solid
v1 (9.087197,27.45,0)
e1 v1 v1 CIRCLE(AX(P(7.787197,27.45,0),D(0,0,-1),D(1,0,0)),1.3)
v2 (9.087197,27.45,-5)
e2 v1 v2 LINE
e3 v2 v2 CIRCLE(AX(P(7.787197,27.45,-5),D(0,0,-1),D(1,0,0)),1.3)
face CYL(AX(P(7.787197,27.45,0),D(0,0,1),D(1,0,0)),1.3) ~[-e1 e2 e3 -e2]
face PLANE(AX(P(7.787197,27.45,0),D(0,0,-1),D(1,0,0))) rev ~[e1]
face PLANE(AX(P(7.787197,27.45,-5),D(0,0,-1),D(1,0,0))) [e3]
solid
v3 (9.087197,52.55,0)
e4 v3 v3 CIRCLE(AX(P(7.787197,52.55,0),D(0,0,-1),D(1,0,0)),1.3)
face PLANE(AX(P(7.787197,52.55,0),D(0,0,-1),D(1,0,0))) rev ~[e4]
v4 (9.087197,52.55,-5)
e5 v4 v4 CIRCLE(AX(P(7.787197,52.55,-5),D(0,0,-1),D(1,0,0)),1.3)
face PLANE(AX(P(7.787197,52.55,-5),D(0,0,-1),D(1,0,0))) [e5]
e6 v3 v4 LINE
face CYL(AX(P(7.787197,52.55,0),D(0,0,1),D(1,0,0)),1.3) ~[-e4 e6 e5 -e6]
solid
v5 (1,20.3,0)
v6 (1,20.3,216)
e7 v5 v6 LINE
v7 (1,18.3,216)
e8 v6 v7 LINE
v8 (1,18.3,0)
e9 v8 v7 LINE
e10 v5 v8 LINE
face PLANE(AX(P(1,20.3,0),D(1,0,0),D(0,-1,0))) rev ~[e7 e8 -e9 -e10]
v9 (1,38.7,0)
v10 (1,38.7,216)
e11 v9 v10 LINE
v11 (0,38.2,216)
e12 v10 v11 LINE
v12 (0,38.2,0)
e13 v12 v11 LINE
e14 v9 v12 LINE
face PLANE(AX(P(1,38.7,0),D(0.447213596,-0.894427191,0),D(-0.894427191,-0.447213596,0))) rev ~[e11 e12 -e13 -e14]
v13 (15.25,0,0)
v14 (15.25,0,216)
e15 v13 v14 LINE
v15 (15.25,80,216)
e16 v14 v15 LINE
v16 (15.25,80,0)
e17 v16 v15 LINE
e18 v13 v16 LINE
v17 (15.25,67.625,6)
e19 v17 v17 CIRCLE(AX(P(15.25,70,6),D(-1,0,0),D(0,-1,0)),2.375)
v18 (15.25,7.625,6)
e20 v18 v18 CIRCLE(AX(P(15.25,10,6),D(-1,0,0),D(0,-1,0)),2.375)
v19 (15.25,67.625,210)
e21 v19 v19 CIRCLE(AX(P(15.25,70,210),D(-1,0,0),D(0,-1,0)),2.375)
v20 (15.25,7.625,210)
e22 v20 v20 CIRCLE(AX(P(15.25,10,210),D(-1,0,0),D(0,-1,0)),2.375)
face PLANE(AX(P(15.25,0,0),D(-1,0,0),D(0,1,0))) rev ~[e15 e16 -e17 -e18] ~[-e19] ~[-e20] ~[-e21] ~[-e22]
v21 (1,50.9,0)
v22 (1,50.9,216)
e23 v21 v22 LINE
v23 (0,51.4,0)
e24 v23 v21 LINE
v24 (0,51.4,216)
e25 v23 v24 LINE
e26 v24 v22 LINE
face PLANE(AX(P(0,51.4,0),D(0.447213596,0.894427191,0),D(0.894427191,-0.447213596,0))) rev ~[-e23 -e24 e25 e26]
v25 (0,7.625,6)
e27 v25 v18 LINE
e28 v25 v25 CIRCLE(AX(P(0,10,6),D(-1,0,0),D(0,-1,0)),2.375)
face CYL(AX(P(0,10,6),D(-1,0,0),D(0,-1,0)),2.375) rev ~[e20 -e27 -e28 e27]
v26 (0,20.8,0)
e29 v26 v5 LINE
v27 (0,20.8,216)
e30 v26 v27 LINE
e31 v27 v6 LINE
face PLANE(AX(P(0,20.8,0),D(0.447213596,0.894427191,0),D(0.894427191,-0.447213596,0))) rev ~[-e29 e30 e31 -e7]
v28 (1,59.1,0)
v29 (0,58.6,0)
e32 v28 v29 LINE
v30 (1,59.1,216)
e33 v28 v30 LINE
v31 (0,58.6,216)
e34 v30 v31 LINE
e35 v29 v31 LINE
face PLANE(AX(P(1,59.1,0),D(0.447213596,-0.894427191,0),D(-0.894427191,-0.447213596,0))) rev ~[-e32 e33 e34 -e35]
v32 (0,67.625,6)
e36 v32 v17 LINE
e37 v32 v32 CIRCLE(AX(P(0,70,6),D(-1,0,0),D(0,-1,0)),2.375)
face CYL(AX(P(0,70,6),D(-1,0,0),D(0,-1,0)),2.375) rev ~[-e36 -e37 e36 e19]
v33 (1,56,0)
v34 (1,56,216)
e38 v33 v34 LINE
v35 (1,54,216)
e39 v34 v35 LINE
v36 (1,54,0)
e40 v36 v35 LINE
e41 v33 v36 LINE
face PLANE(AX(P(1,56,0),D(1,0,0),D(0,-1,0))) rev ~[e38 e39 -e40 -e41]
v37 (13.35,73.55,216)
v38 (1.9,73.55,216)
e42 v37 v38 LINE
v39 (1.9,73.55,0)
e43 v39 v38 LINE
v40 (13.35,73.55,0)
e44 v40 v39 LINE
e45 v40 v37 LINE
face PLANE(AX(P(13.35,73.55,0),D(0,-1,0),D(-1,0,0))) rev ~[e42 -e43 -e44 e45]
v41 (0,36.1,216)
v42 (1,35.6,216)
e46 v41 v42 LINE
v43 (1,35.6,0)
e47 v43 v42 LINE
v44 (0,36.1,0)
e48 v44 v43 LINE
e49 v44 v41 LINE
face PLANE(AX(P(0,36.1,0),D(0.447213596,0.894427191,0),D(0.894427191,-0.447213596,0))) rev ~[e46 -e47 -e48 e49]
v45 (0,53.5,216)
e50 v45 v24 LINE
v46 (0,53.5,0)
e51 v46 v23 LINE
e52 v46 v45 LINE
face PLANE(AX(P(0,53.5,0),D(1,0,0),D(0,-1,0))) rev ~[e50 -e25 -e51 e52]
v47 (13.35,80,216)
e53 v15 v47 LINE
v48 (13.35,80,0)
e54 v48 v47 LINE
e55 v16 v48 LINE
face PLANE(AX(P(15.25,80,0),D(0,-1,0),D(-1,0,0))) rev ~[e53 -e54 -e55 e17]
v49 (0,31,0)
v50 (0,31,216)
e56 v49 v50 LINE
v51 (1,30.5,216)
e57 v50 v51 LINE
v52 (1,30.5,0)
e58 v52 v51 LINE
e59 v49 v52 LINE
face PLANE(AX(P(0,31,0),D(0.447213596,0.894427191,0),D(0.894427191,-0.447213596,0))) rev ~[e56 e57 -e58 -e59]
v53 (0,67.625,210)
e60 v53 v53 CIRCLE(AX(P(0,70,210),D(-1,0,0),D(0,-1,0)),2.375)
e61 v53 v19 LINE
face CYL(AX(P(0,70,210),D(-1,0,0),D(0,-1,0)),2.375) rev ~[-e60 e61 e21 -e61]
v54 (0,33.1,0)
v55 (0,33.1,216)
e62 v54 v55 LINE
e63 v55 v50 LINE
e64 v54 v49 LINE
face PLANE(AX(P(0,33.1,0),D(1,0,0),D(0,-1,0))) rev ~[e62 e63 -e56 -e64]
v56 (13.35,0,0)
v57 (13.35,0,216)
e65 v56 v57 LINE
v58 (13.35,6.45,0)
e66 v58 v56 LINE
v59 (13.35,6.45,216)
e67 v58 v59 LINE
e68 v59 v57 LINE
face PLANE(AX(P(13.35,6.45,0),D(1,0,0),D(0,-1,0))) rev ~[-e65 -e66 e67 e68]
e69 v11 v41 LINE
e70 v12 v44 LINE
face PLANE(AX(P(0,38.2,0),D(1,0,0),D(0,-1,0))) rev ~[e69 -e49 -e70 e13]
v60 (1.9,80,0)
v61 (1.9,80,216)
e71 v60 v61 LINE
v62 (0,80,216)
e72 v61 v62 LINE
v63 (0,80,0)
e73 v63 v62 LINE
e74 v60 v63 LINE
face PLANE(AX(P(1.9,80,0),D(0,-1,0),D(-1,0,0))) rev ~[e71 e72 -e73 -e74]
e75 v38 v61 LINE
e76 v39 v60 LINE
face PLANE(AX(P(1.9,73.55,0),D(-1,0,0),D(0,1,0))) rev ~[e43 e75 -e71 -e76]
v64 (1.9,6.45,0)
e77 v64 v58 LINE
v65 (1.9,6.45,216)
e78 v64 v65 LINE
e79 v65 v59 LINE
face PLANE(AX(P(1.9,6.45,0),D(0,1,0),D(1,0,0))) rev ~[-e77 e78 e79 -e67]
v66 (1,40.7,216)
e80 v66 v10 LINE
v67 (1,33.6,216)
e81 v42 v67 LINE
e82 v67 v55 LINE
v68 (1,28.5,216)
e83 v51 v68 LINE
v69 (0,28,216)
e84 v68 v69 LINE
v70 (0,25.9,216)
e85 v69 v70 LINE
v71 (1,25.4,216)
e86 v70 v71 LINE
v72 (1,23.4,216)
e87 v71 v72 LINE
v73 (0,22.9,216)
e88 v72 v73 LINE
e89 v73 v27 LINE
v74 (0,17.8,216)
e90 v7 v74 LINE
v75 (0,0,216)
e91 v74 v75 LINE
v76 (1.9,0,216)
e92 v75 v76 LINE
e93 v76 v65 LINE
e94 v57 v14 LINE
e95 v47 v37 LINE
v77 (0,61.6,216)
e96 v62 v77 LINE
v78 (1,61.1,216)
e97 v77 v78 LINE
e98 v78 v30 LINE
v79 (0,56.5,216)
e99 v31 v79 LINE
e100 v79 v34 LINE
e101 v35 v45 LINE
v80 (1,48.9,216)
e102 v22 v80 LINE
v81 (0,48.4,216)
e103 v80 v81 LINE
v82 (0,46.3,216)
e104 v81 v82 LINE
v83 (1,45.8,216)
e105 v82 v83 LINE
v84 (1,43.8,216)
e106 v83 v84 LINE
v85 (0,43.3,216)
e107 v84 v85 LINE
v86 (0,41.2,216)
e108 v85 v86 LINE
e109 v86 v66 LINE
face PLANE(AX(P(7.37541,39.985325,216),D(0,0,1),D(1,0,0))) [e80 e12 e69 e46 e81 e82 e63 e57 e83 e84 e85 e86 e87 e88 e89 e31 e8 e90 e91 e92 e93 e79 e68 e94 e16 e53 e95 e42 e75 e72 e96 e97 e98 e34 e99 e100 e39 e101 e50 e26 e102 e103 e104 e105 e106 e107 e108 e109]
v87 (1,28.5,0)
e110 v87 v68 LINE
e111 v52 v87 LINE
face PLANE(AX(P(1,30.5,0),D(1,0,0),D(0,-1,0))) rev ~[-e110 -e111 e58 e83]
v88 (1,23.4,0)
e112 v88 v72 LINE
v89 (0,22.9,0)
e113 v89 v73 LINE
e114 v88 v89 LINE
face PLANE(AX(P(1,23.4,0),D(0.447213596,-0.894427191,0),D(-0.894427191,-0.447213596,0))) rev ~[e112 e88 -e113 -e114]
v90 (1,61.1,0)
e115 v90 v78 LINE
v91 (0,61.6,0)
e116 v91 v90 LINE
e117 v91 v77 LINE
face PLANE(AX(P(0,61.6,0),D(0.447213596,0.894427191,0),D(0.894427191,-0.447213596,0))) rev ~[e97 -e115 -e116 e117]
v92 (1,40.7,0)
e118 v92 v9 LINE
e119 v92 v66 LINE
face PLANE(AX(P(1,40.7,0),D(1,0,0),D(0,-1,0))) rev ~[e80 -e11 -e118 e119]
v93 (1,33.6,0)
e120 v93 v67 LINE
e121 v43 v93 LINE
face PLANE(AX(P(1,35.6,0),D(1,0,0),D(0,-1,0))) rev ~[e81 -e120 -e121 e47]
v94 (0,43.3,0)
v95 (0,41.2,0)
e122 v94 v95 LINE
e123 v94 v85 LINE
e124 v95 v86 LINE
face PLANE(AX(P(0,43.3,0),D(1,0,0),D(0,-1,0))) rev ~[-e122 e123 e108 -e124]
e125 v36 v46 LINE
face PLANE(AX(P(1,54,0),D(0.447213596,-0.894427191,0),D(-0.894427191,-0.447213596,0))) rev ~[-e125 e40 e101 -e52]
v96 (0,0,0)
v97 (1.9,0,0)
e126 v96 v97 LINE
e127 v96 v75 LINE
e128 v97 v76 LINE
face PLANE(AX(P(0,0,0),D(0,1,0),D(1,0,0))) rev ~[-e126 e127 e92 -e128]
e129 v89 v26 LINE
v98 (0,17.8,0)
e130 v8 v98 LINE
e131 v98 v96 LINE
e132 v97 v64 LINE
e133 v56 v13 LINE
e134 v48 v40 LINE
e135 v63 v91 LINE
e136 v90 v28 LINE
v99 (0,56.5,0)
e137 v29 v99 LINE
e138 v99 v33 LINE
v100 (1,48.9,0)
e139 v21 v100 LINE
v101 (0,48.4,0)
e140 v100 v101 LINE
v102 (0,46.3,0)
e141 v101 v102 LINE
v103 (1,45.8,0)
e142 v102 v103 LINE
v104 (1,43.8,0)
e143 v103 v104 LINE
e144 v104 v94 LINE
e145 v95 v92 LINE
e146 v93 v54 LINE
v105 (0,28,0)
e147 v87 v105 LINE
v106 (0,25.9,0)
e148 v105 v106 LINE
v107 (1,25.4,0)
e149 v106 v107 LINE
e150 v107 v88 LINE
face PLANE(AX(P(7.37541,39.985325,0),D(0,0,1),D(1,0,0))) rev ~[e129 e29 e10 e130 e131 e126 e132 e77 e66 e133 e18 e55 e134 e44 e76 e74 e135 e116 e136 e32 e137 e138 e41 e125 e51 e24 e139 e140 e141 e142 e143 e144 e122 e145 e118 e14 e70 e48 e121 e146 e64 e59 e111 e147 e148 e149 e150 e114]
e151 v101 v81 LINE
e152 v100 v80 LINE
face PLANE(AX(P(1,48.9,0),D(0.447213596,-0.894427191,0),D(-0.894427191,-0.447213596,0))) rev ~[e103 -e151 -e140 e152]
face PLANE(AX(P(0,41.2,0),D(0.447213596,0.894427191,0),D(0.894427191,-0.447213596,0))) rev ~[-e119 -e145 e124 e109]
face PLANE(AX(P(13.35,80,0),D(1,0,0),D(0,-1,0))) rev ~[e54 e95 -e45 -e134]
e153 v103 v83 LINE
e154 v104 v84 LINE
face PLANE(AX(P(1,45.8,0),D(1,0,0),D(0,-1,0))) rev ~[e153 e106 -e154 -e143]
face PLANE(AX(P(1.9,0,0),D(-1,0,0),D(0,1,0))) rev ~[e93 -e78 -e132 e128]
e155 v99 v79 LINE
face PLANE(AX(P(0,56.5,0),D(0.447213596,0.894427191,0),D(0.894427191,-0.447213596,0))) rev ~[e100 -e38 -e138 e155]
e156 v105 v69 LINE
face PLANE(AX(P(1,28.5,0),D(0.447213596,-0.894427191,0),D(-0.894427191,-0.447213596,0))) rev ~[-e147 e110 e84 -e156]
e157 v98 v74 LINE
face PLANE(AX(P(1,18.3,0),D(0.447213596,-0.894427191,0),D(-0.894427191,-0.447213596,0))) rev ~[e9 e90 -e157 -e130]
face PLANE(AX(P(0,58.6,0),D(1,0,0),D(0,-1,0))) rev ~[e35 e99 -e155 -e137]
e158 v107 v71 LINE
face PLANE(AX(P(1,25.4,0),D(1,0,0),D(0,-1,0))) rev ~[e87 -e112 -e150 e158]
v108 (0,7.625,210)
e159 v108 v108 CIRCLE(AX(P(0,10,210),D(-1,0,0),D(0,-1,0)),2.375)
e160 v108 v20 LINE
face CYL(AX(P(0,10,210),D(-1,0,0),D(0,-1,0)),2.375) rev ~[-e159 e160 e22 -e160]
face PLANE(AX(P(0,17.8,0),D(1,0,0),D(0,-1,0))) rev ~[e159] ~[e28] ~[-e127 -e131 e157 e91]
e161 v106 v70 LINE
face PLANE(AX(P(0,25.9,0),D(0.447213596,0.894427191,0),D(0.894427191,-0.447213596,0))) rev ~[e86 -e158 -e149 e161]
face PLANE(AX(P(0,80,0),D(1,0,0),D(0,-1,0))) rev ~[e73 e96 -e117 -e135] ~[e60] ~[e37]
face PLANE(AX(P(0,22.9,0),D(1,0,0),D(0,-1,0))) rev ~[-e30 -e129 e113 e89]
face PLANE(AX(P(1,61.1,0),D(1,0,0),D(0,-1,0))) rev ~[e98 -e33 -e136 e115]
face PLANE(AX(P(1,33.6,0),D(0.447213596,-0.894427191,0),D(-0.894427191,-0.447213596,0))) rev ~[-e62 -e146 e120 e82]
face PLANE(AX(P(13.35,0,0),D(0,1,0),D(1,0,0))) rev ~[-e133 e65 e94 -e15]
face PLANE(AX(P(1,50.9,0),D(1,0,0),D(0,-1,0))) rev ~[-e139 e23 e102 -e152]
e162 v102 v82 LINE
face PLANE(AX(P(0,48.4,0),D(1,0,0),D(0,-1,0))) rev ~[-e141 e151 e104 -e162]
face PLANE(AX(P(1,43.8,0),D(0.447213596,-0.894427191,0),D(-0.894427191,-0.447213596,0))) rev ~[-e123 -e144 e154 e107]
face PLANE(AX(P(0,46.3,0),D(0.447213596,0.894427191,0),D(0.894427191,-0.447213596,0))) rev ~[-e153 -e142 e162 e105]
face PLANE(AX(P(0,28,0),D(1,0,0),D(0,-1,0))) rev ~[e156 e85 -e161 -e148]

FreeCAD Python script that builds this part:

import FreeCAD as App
import Part
import Sketcher

V = App.Vector


def add_polygon(sketch, points):
    """Adds a closed chain of lines whose ends are joined by coincident constraints."""
    first, n = sketch.GeometryCount, len(points)
    for a, b in zip(points, points[1:] + points[:1]):
        sketch.addGeometry(Part.LineSegment(App.Vector(*a, 0), App.Vector(*b, 0)), False)
    for i in range(n):
        sketch.addConstraint(Sketcher.Constraint("Coincident", first + i, 2, first + (i + 1) % n, 1))

doc = App.newDocument("Part")
body = doc.addObject("PartDesign::Body", "Body")

# Sketch on XY plane
sketch1 = doc.addObject("Sketcher::SketchObject", "Sketch")
body.addObject(sketch1)
sketch1.AttachmentSupport = (doc.XY_Plane, [""])
sketch1.MapMode = "FlatFace"
add_polygon(sketch1, [(0, 17.8), (0, 0), (1.9, 0), (1.9, 6.45), (13.35, 6.45), (13.35, 0), (15.25, 0), (15.25, 80), (13.35, 80), (13.35, 73.55), (1.9, 73.55), (1.9, 80), (0, 80), (0, 61.6), (1, 61.1), (1, 59.1), (0, 58.6), (0, 56.5), (1, 56), (1, 54), (0, 53.5), (0, 51.4), (1, 50.9), (1, 48.9), (0, 48.4), (0, 46.3), (1, 45.8), (1, 43.8), (0, 43.3), (0, 41.2), (1, 40.7), (1, 38.7), (0, 38.2), (0, 36.1), (1, 35.6), (1, 33.6), (0, 33.1), (0, 31), (1, 30.5), (1, 28.5), (0, 28), (0, 25.9), (1, 25.4), (1, 23.4), (0, 22.9), (0, 20.8), (1, 20.3), (1, 18.3)])  # lines 0-47
sketch1.addConstraint(Sketcher.Constraint("Vertical", 0))
sketch1.addConstraint(Sketcher.Constraint("Horizontal", 1))
sketch1.addConstraint(Sketcher.Constraint("Vertical", 2))
sketch1.addConstraint(Sketcher.Constraint("Horizontal", 3))
sketch1.addConstraint(Sketcher.Constraint("Vertical", 4))
sketch1.addConstraint(Sketcher.Constraint("Horizontal", 5))
sketch1.addConstraint(Sketcher.Constraint("Vertical", 6))
sketch1.addConstraint(Sketcher.Constraint("Horizontal", 7))
sketch1.addConstraint(Sketcher.Constraint("Vertical", 8))
sketch1.addConstraint(Sketcher.Constraint("Horizontal", 9))
sketch1.addConstraint(Sketcher.Constraint("Vertical", 10))
sketch1.addConstraint(Sketcher.Constraint("Horizontal", 11))
sketch1.addConstraint(Sketcher.Constraint("Vertical", 12))
sketch1.addConstraint(Sketcher.Constraint("Vertical", 14))
sketch1.addConstraint(Sketcher.Constraint("Vertical", 16))
sketch1.addConstraint(Sketcher.Constraint("Vertical", 18))
sketch1.addConstraint(Sketcher.Constraint("Vertical", 20))
sketch1.addConstraint(Sketcher.Constraint("Vertical", 22))
sketch1.addConstraint(Sketcher.Constraint("Vertical", 24))
sketch1.addConstraint(Sketcher.Constraint("Vertical", 26))
sketch1.addConstraint(Sketcher.Constraint("Vertical", 28))
sketch1.addConstraint(Sketcher.Constraint("Vertical", 30))
sketch1.addConstraint(Sketcher.Constraint("Vertical", 32))
sketch1.addConstraint(Sketcher.Constraint("Vertical", 34))
sketch1.addConstraint(Sketcher.Constraint("Vertical", 36))
sketch1.addConstraint(Sketcher.Constraint("Vertical", 38))
sketch1.addConstraint(Sketcher.Constraint("Vertical", 40))
sketch1.addConstraint(Sketcher.Constraint("Vertical", 42))
sketch1.addConstraint(Sketcher.Constraint("Vertical", 44))
sketch1.addConstraint(Sketcher.Constraint("Vertical", 46))
sketch1.addConstraint(Sketcher.Constraint("Coincident", 0, 2, -1, 1))
sketch1.addConstraint(Sketcher.Constraint("PointOnObject", 4, 2, -1))
sketch1.addConstraint(Sketcher.Constraint("PointOnObject", 11, 2, -2))
sketch1.addConstraint(Sketcher.Constraint("PointOnObject", 15, 2, -2))
sketch1.addConstraint(Sketcher.Constraint("PointOnObject", 19, 2, -2))
sketch1.addConstraint(Sketcher.Constraint("PointOnObject", 23, 2, -2))
sketch1.addConstraint(Sketcher.Constraint("PointOnObject", 27, 2, -2))
sketch1.addConstraint(Sketcher.Constraint("PointOnObject", 31, 2, -2))
sketch1.addConstraint(Sketcher.Constraint("PointOnObject", 35, 2, -2))
sketch1.addConstraint(Sketcher.Constraint("PointOnObject", 39, 2, -2))
sketch1.addConstraint(Sketcher.Constraint("PointOnObject", 43, 2, -2))
sketch1.addConstraint(Sketcher.Constraint("Parallel", 13, 17))
sketch1.addConstraint(Sketcher.Constraint("Parallel", 15, 19))
sketch1.addConstraint(Sketcher.Constraint("Parallel", 17, 21))
sketch1.addConstraint(Sketcher.Constraint("Parallel", 19, 23))
sketch1.addConstraint(Sketcher.Constraint("Parallel", 21, 25))
sketch1.addConstraint(Sketcher.Constraint("Parallel", 23, 27))
sketch1.addConstraint(Sketcher.Constraint("Parallel", 25, 29))
sketch1.addConstraint(Sketcher.Constraint("Parallel", 27, 31))
sketch1.addConstraint(Sketcher.Constraint("Parallel", 29, 33))
sketch1.addConstraint(Sketcher.Constraint("Parallel", 31, 35))
sketch1.addConstraint(Sketcher.Constraint("Parallel", 33, 37))
sketch1.addConstraint(Sketcher.Constraint("Parallel", 35, 39))
sketch1.addConstraint(Sketcher.Constraint("Parallel", 37, 41))
sketch1.addConstraint(Sketcher.Constraint("Parallel", 39, 43))
sketch1.addConstraint(Sketcher.Constraint("Parallel", 41, 45))
sketch1.addConstraint(Sketcher.Constraint("Parallel", 43, 47))
sketch1.addConstraint(Sketcher.Constraint("Horizontal", 7, 2, 10, 2))
sketch1.addConstraint(Sketcher.Constraint("Vertical", 4, 2, 7, 2))
sketch1.addConstraint(Sketcher.Constraint("Vertical", 2, 2, 9, 2))
sketch1.addConstraint(Sketcher.Constraint("Vertical", 14, 2, 17, 2))
sketch1.addConstraint(Sketcher.Constraint("Vertical", 18, 2, 21, 2))
sketch1.addConstraint(Sketcher.Constraint("Vertical", 22, 2, 25, 2))
sketch1.addConstraint(Sketcher.Constraint("Vertical", 26, 2, 29, 2))
sketch1.addConstraint(Sketcher.Constraint("Vertical", 30, 2, 33, 2))
sketch1.addConstraint(Sketcher.Constraint("Vertical", 34, 2, 37, 2))
sketch1.addConstraint(Sketcher.Constraint("Vertical", 38, 2, 41, 2))
sketch1.addConstraint(Sketcher.Constraint("Vertical", 42, 2, 45, 2))
sketch1.addConstraint(Sketcher.Constraint("Equal", 1, 5))
sketch1.addConstraint(Sketcher.Constraint("Equal", 4, 8))
sketch1.addConstraint(Sketcher.Constraint("Equal", 14, 18))
sketch1.addConstraint(Sketcher.Constraint("Equal", 16, 20))
sketch1.addConstraint(Sketcher.Constraint("Equal", 18, 22))
sketch1.addConstraint(Sketcher.Constraint("Equal", 20, 24))
sketch1.addConstraint(Sketcher.Constraint("Equal", 22, 26))
sketch1.addConstraint(Sketcher.Constraint("Equal", 24, 28))
sketch1.addConstraint(Sketcher.Constraint("Equal", 26, 30))
sketch1.addConstraint(Sketcher.Constraint("Equal", 28, 32))
sketch1.addConstraint(Sketcher.Constraint("Equal", 30, 34))
sketch1.addConstraint(Sketcher.Constraint("Equal", 32, 36))
sketch1.addConstraint(Sketcher.Constraint("Equal", 34, 38))
sketch1.addConstraint(Sketcher.Constraint("Equal", 36, 40))
sketch1.addConstraint(Sketcher.Constraint("Equal", 38, 42))
sketch1.addConstraint(Sketcher.Constraint("Equal", 40, 44))
sketch1.addConstraint(Sketcher.Constraint("Equal", 42, 46))
sketch1.addConstraint(Sketcher.Constraint("Equal", 13, 15))
sketch1.addConstraint(Sketcher.Constraint("DistanceY", 6, 1, 6, 2, 80.0))
sketch1.addConstraint(Sketcher.Constraint("DistanceY", 14, 2, 14, 1, 2.0))
sketch1.addConstraint(Sketcher.Constraint("DistanceX", 1, 1, 1, 2, 1.9))
sketch1.addConstraint(Sketcher.Constraint("DistanceY", 0, 2, 0, 1, 17.8))
sketch1.addConstraint(Sketcher.Constraint("DistanceY", 12, 2, 12, 1, 18.4))
sketch1.addConstraint(Sketcher.Constraint("DistanceY", 16, 2, 16, 1, 2.1))
sketch1.addConstraint(Sketcher.Constraint("DistanceX", -1, 1, 13, 2, 1.0))
sketch1.addConstraint(Sketcher.Constraint("DistanceX", 3, 1, 3, 2, 11.45))
sketch1.addConstraint(Sketcher.Constraint("DistanceY", 2, 1, 2, 2, 6.45))
pad1 = doc.addObject("PartDesign::Pad", "Pad")
body.addObject(pad1)
pad1.Profile = sketch1
pad1.Length = 216

# Sketch on YZ plane
sketch2 = doc.addObject("Sketcher::SketchObject", "Sketch001")
body.addObject(sketch2)
sketch2.AttachmentSupport = (doc.YZ_Plane, [""])
sketch2.MapMode = "FlatFace"
sketch2.addGeometry(Part.Circle(V(70, 6, 0), V(0, 0, 1), 2.375), False)
sketch2.addGeometry(Part.Circle(V(10, 6, 0), V(0, 0, 1), 2.375), False)
sketch2.addGeometry(Part.Circle(V(70, 210, 0), V(0, 0, 1), 2.375), False)
sketch2.addGeometry(Part.Circle(V(10, 210, 0), V(0, 0, 1), 2.375), False)
sketch2.addConstraint(Sketcher.Constraint("Equal", 0, 1))
sketch2.addConstraint(Sketcher.Constraint("Equal", 1, 2))
sketch2.addConstraint(Sketcher.Constraint("Equal", 2, 3))
sketch2.addConstraint(Sketcher.Constraint("Horizontal", 0, 3, 1, 3))
sketch2.addConstraint(Sketcher.Constraint("Horizontal", 2, 3, 3, 3))
sketch2.addConstraint(Sketcher.Constraint("Vertical", 0, 3, 2, 3))
sketch2.addConstraint(Sketcher.Constraint("Vertical", 1, 3, 3, 3))
sketch2.addConstraint(Sketcher.Constraint("Diameter", 0, 4.75))
sketch2.addConstraint(Sketcher.Constraint("DistanceX", -1, 1, 0, 3, 70.0))
sketch2.addConstraint(Sketcher.Constraint("DistanceY", -1, 1, 0, 3, 6.0))
sketch2.addConstraint(Sketcher.Constraint("DistanceX", -1, 1, 1, 3, 10.0))
sketch2.addConstraint(Sketcher.Constraint("DistanceY", -1, 1, 2, 3, 210.0))
pocket1 = doc.addObject("PartDesign::Pocket", "Pocket")
body.addObject(pocket1)
pocket1.Profile = sketch2
pocket1.Type = "ThroughAll"
pocket1.Reversed = True
body2 = doc.addObject("PartDesign::Body", "Body001")

# Sketch on XY plane
sketch3 = doc.addObject("Sketcher::SketchObject", "Sketch002")
body2.addObject(sketch3)
sketch3.AttachmentSupport = (doc.getObject("XY_Plane001"), [""])
sketch3.MapMode = "FlatFace"
sketch3.addGeometry(Part.Circle(V(7.787197, 27.45, 0), V(0, 0, 1), 1.3), False)
sketch3.addConstraint(Sketcher.Constraint("Diameter", 0, 2.6))
sketch3.addConstraint(Sketcher.Constraint("DistanceY", -1, 1, 0, 3, 27.45))
sketch3.addConstraint(Sketcher.Constraint("DistanceX", -1, 1, 0, 3, 7.787197))
pad2 = doc.addObject("PartDesign::Pad", "Pad001")
body2.addObject(pad2)
pad2.Profile = sketch3
pad2.Length = 5
pad2.Reversed = True
body3 = doc.addObject("PartDesign::Body", "Body002")

# Sketch on XY plane
sketch4 = doc.addObject("Sketcher::SketchObject", "Sketch003")
body3.addObject(sketch4)
sketch4.AttachmentSupport = (doc.getObject("XY_Plane002"), [""])
sketch4.MapMode = "FlatFace"
sketch4.addGeometry(Part.Circle(V(7.787197, 52.55, 0), V(0, 0, 1), 1.3), False)
sketch4.addConstraint(Sketcher.Constraint("Diameter", 0, 2.6))
sketch4.addConstraint(Sketcher.Constraint("DistanceY", -1, 1, 0, 3, 52.55))
sketch4.addConstraint(Sketcher.Constraint("DistanceX", -1, 1, 0, 3, 7.787197))
pad3 = doc.addObject("PartDesign::Pad", "Pad002")
body3.addObject(pad3)
pad3.Profile = sketch4
pad3.Length = 5
pad3.Reversed = True

doc.recompute()
